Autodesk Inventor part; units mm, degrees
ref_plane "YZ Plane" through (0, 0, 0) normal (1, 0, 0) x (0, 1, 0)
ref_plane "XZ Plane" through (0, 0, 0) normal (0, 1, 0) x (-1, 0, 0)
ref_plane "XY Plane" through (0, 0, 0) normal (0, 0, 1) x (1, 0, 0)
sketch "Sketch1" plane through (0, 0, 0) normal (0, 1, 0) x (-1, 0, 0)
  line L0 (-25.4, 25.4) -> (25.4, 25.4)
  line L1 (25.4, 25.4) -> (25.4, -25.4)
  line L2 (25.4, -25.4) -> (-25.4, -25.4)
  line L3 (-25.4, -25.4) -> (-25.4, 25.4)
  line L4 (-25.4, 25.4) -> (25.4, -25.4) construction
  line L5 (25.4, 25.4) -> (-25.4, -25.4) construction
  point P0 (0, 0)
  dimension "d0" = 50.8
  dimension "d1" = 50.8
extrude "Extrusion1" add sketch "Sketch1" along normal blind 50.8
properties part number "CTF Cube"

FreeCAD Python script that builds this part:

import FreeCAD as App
import Part
import Sketcher

V = App.Vector
Q = App.Units.Quantity


def add_polygon(sketch, points):
    """Adds a closed chain of lines whose ends are joined by coincident constraints."""
    first, n = sketch.GeometryCount, len(points)
    for a, b in zip(points, points[1:] + points[:1]):
        sketch.addGeometry(Part.LineSegment(App.Vector(*a, 0), App.Vector(*b, 0)), False)
    for i in range(n):
        sketch.addConstraint(Sketcher.Constraint("Coincident", first + i, 2, first + (i + 1) % n, 1))

doc = App.newDocument("Part")
body = doc.addObject("PartDesign::Body", "Body")

# Sketch on XZ plane
sketch1 = body.newObject("Sketcher::SketchObject", "Sketch")
sketch1.AttachmentSupport = (doc.getObject("XZ_Plane"), [""])
sketch1.MapMode = "FlatFace"
add_polygon(sketch1, [(-25.4, 25.4), (25.4, 25.4), (25.4, -25.4), (-25.4, -25.4)])  # lines 0-3
sketch1.addConstraint(Sketcher.Constraint("Horizontal", 0))
sketch1.addConstraint(Sketcher.Constraint("Vertical", 1))
sketch1.addConstraint(Sketcher.Constraint("Horizontal", 2))
sketch1.addConstraint(Sketcher.Constraint("Vertical", 3))
sketch1.addConstraint(Sketcher.Constraint("Symmetric", 0, 2, 2, 2, -1, 1))
sketch1.addConstraint(Sketcher.Constraint("Equal", 2, 1))
sketch1.addConstraint(Sketcher.Constraint("DistanceX", 0, 1, 0, 2, Q("2 in")))
pad1 = body.newObject("PartDesign::Pad", "Pad")
pad1.Profile = sketch1
pad1.Length = Q("2 in")
pad1.Reversed = True

doc.recompute()
